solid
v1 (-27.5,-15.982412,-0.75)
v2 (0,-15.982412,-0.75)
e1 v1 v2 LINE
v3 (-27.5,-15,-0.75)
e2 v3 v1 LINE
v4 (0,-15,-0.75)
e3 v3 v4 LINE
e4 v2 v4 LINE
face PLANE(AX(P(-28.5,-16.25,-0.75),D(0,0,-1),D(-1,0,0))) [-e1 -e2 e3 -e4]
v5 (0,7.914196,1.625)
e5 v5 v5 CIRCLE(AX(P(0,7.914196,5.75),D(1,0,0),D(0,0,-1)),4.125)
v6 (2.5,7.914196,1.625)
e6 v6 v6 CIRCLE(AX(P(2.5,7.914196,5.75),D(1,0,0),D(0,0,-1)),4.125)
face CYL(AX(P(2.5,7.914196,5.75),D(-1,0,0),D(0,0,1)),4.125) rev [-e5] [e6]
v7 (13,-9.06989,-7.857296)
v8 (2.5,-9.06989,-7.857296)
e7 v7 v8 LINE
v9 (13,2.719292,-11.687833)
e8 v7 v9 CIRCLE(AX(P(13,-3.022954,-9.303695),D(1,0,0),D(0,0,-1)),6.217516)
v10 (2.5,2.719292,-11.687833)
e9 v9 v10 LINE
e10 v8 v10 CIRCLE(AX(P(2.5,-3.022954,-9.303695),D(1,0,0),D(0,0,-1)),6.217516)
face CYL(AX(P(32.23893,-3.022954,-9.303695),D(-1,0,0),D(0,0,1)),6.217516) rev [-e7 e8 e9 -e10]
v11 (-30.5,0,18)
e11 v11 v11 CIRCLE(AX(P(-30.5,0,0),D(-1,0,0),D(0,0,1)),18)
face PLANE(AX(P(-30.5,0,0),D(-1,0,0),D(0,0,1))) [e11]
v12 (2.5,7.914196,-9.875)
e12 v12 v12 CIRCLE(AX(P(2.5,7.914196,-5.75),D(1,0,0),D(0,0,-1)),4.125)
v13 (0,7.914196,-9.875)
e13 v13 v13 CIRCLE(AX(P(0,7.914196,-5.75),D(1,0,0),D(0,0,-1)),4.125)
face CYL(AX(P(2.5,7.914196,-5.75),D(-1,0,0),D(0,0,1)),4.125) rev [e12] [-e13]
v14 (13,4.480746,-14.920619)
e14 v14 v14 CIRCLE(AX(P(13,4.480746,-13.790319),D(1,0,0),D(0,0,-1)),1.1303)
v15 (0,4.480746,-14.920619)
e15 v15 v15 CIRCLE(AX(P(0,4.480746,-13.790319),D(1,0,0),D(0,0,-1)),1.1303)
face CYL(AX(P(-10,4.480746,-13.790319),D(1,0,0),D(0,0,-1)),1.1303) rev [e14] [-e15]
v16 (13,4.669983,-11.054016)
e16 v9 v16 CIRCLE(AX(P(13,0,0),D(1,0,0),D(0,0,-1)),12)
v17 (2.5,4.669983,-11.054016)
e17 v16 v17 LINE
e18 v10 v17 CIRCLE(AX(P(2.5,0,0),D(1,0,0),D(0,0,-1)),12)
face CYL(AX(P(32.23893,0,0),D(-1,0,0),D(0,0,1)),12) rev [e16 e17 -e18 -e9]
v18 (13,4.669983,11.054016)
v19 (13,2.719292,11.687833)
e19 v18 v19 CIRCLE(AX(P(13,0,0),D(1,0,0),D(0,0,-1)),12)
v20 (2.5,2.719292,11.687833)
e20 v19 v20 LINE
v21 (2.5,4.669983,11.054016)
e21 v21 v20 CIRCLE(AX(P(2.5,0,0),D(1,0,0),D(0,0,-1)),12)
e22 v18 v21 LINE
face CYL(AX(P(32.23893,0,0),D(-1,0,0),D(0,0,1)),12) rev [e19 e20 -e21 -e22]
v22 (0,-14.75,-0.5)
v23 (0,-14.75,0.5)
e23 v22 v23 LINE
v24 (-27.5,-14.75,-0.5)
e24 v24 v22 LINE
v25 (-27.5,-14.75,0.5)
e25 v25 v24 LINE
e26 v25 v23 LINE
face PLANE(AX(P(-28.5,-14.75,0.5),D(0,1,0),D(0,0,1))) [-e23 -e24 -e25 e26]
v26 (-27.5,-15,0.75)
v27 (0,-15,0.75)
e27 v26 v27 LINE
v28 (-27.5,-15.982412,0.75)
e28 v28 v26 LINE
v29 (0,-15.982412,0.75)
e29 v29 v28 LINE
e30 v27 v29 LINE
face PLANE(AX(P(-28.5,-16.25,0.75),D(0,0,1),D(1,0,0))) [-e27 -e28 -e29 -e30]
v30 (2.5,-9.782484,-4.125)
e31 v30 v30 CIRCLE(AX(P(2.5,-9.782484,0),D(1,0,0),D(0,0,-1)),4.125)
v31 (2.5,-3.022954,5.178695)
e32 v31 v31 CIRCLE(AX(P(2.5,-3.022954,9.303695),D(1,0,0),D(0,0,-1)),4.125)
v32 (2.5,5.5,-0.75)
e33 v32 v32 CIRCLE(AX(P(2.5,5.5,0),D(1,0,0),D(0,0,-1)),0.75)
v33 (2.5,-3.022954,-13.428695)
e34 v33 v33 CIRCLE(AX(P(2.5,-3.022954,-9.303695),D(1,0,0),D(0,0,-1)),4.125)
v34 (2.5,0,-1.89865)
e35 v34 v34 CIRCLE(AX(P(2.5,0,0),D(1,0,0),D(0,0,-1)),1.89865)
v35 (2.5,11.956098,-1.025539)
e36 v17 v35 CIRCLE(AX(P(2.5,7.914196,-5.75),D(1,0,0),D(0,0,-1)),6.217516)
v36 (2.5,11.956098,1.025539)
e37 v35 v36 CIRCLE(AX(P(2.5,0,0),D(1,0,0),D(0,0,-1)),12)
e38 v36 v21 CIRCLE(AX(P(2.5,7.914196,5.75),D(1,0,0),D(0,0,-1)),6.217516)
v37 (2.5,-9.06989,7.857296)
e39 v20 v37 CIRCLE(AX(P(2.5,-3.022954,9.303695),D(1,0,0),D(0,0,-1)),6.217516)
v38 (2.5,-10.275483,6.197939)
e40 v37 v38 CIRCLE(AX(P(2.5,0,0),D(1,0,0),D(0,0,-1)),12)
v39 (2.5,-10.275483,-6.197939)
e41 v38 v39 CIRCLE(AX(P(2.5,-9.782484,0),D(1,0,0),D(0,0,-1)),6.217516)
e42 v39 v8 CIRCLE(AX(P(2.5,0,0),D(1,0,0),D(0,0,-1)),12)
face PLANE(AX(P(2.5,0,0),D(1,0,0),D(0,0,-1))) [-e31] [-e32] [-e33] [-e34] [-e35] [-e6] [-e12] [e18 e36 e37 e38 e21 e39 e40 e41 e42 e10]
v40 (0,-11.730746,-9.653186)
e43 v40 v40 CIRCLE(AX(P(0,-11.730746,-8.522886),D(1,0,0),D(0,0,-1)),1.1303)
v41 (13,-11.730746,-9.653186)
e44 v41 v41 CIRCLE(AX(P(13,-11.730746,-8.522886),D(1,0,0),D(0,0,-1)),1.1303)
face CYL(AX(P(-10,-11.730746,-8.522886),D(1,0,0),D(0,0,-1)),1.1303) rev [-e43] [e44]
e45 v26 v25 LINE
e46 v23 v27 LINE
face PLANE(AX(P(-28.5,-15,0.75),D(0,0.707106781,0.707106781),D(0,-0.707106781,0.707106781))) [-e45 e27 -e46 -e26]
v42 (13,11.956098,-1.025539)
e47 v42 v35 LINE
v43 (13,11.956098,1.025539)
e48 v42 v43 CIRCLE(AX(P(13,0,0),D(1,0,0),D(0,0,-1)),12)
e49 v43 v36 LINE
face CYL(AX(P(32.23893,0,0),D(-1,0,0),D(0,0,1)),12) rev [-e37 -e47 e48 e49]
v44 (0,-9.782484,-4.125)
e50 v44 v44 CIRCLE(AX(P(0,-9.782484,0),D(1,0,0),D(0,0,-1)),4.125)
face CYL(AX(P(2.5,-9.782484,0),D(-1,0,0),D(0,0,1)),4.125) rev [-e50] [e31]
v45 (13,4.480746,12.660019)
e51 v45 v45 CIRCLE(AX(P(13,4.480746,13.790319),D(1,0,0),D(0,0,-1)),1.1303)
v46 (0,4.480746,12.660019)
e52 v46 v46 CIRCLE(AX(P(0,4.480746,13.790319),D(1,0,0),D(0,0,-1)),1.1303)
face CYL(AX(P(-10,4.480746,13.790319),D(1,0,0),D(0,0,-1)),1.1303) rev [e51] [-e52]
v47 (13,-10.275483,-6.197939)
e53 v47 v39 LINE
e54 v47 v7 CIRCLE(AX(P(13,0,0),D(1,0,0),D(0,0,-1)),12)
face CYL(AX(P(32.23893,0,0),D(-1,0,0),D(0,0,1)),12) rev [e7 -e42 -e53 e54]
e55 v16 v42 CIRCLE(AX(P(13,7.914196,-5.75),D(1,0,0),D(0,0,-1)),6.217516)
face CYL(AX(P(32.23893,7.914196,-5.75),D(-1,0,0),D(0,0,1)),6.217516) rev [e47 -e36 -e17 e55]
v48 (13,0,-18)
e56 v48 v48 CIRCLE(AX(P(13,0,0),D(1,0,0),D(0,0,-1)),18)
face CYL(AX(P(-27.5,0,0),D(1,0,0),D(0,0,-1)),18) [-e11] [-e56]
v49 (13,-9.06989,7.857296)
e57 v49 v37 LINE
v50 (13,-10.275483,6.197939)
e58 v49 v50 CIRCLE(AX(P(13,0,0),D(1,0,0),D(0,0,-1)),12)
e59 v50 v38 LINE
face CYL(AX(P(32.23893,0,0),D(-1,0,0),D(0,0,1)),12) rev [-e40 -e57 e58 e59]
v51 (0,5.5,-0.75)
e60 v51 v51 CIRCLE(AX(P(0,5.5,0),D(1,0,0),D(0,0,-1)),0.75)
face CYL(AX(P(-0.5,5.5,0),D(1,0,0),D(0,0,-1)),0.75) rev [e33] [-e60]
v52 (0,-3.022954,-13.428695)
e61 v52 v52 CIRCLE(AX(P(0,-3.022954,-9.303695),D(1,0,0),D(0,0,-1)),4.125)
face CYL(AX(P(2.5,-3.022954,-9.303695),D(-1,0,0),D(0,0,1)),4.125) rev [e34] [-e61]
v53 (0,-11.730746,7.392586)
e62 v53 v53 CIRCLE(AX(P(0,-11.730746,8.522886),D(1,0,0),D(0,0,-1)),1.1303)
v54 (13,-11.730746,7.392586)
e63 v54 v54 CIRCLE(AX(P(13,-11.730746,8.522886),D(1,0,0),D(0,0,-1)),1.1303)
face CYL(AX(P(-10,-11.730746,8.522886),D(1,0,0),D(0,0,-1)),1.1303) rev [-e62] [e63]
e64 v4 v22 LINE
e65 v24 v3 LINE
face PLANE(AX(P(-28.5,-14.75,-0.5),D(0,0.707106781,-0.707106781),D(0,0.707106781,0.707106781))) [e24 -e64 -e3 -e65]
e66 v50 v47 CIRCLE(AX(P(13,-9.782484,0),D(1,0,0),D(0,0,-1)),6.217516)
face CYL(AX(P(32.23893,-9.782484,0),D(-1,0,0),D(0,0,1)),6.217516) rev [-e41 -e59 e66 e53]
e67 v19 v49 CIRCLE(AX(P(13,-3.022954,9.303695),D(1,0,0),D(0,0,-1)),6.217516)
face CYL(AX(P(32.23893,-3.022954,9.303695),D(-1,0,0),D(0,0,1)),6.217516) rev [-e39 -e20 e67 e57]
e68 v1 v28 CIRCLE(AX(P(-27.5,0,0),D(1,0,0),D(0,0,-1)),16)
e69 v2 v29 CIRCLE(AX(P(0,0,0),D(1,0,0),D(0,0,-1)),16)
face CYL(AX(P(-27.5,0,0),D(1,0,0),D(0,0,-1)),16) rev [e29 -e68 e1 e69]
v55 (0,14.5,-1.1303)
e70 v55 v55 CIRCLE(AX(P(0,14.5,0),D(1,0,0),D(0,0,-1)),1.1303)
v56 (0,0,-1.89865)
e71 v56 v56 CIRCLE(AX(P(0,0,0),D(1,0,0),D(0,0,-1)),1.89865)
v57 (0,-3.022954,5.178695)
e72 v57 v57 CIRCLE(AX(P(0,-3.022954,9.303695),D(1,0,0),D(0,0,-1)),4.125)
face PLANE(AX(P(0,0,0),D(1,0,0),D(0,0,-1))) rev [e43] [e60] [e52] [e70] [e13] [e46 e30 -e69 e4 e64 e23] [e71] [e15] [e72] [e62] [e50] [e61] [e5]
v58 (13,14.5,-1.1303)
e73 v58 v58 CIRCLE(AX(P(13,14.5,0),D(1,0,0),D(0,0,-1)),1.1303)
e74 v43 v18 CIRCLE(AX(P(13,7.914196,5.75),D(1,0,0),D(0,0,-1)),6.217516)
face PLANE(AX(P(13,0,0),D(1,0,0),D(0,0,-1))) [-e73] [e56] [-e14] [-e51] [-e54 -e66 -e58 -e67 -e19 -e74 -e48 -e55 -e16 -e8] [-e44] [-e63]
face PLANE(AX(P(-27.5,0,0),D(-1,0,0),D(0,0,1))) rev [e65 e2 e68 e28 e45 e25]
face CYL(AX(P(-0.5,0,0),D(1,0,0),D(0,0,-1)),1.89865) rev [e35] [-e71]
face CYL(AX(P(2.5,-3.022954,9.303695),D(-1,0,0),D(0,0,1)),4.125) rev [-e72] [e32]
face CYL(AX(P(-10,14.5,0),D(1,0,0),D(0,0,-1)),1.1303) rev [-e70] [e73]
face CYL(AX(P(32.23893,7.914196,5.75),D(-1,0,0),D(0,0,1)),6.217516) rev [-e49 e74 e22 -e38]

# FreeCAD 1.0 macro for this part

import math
import FreeCAD as App
import Part
import Sketcher

V = App.Vector
Q = App.Units.Quantity


def add_polygon(sketch, points):
    """Adds a closed chain of lines whose ends are joined by coincident constraints."""
    first, n = sketch.GeometryCount, len(points)
    for a, b in zip(points, points[1:] + points[:1]):
        sketch.addGeometry(Part.LineSegment(App.Vector(*a, 0), App.Vector(*b, 0)), False)
    for i in range(n):
        sketch.addConstraint(Sketcher.Constraint("Coincident", first + i, 2, first + (i + 1) % n, 1))

doc = App.newDocument("Part")
body = doc.addObject("PartDesign::Body", "Body")

# Sketch on YZ plane
sketch1 = body.newObject("Sketcher::SketchObject", "Sketch")
sketch1.AttachmentSupport = (doc.getObject("YZ_Plane"), [""])
sketch1.MapMode = "FlatFace"
sketch1.addGeometry([
    Part.Circle(V(0, 0, 0), V(0, 0, 1), 16),  # 0
    Part.Circle(V(-9.782484, 0, 0), V(0, 0, 1), 4.125),  # 1
    Part.Circle(V(-3.022954, 9.303695, 0), V(0, 0, 1), 4.125),  # 2
    Part.Circle(V(-3.022954, -9.303695, 0), V(0, 0, 1), 4.125),  # 3
    Part.Circle(V(7.914196, 5.75, 0), V(0, 0, 1), 4.125),  # 4
    Part.Circle(V(7.914196, -5.75, 0), V(0, 0, 1), 4.125),  # 5
], False)
sketch1.addConstraint([
    Sketcher.Constraint("Coincident", 0, 3, -1, 1),
    Sketcher.Constraint("Equal", 1, 2),
    Sketcher.Constraint("Equal", 2, 3),
    Sketcher.Constraint("Equal", 3, 4),
    Sketcher.Constraint("Equal", 4, 5),
    Sketcher.Constraint("Symmetric", 2, 3, 3, 3, -1),
    Sketcher.Constraint("Symmetric", 4, 3, 5, 3, -1),
    Sketcher.Constraint("PointOnObject", 1, 3, -1),
    Sketcher.Constraint("Diameter", 0, Q("32 mm")),
    Sketcher.Constraint("Diameter", 1, Q("8.25 mm")),
    Sketcher.Constraint("DistanceY", 5, 3, 4, 3, Q("11.5 mm")),
    Sketcher.Constraint("DistanceX", 1, 3, 2, 3, Q("6.75953 mm")),
    Sketcher.Constraint("DistanceY", 3, 3, 2, 3, Q("18.607391 mm")),
    Sketcher.Constraint("DistanceX", 2, 3, 4, 3, Q("10.93715 mm")),
    Sketcher.Constraint("DistanceX", 1, 3, -1, 1, Q("9.782484 mm")),
])
pad1 = body.newObject("PartDesign::Pad", "Pad")
pad1.Profile = sketch1
pad1.Length = 2.5

# Sketch on YZ plane
sketch2 = body.newObject("Sketcher::SketchObject", "Sketch001")
sketch2.AttachmentSupport = (doc.getObject("YZ_Plane"), [""])
sketch2.MapMode = "FlatFace"
sketch2.AttachmentOffset = App.Placement(V(0, 0, 2.5), App.Rotation())
sketch2.addGeometry([
    Part.Circle(V(0, 0, 0), V(0, 0, 1), 18),
    Part.Circle(V(0, 0, 0), V(0, 0, 1), 16),
], False)
sketch2.addConstraint([
    Sketcher.Constraint("Coincident", 0, 3, -1, 1),
    Sketcher.Constraint("Coincident", 1, 3, -1, 1),
    Sketcher.Constraint("Diameter", 0, Q("36 mm")),
    Sketcher.Constraint("Diameter", 1, Q("32 mm")),
])
pad2 = body.newObject("PartDesign::Pad", "Pad001")
pad2.Profile = sketch2
pad2.Type = "TwoLengths"
pad2.Length = 10.5
pad2.Length2 = 30

# Sketch on YZ plane
sketch3 = body.newObject("Sketcher::SketchObject", "Sketch002")
sketch3.AttachmentSupport = (doc.getObject("YZ_Plane"), [""])
sketch3.MapMode = "FlatFace"
sketch3.AttachmentOffset = App.Placement(V(0, 0, -27.5), App.Rotation())
sketch3.addGeometry(Part.Circle(V(0, 0, 0), V(0, 0, 1), 18), False)
sketch3.addConstraint([
    Sketcher.Constraint("Coincident", 0, 3, -1, 1),
    Sketcher.Constraint("Diameter", 0, Q("36 mm")),
])
pad3 = body.newObject("PartDesign::Pad", "Pad002")
pad3.Profile = sketch3
pad3.Length = 3
pad3.Reversed = True

# Sketch on YZ plane
sketch4 = body.newObject("Sketcher::SketchObject", "Sketch003")
sketch4.AttachmentSupport = (doc.getObject("YZ_Plane"), [""])
sketch4.MapMode = "FlatFace"
sketch4.AttachmentOffset = App.Placement(V(0, 0, 2.5), App.Rotation())
sketch4.addGeometry(Part.Circle(V(0, 0, 0), V(0, 0, 1), 1.89865), False)
sketch4.addConstraint([
    Sketcher.Constraint("Coincident", 0, 3, -1, 1),
    Sketcher.Constraint("Diameter", 0, Q("3.7973 mm")),
])
pocket1 = body.newObject("PartDesign::Pocket", "Pocket")
pocket1.Profile = sketch4
pocket1.Length = 3

# Sketch on YZ plane
sketch5 = body.newObject("Sketcher::SketchObject", "Sketch004")
sketch5.AttachmentSupport = (doc.getObject("YZ_Plane"), [""])
sketch5.MapMode = "FlatFace"
sketch5.AttachmentOffset = App.Placement(V(0, 0, 2.5), App.Rotation())
add_polygon(sketch5, [(-14.75, 0.5), (-15, 0.75), (-16.25, 0.75), (-16.25, -0.75), (-15, -0.75), (-14.75, -0.5)])  # lines 0-5
sketch5.addConstraint([
    Sketcher.Constraint("Horizontal", 1),
    Sketcher.Constraint("Vertical", 2),
    Sketcher.Constraint("Horizontal", 3),
    Sketcher.Constraint("Vertical", 5),
    Sketcher.Constraint("Symmetric", 0, 2, 3, 2, -1),
    Sketcher.Constraint("Perpendicular", 0, 4),
    Sketcher.Constraint("Equal", 0, 4),
    Sketcher.Constraint("DistanceY", 5, 1, 5, 2, Q("1 mm")),
    Sketcher.Constraint("DistanceY", 2, 2, 2, 1, Q("1.5 mm")),
    Sketcher.Constraint("DistanceX", 0, 2, -1, 1, Q("15 mm")),
    Sketcher.Constraint("DistanceX", 1, 2, 1, 1, Q("1.25 mm")),
])
pad4 = body.newObject("PartDesign::Pad", "Pad003")
pad4.Profile = sketch5
pad4.Length = 31
pad4.Reversed = True

# Sketch on YZ plane
sketch6 = body.newObject("Sketcher::SketchObject", "Sketch005")
sketch6.AttachmentSupport = (doc.getObject("YZ_Plane"), [""])
sketch6.MapMode = "FlatFace"
sketch6.AttachmentOffset = App.Placement(V(0, 0, 2.5), App.Rotation())
sketch6.addGeometry(Part.Circle(V(5.5, 0, 0), V(0, 0, 1), 0.75), False)
sketch6.addConstraint([
    Sketcher.Constraint("PointOnObject", 0, 3, -1),
    Sketcher.Constraint("Diameter", 0, Q("1.5 mm")),
    Sketcher.Constraint("DistanceX", -1, 1, 0, 3, Q("5.5 mm")),
])
pocket2 = body.newObject("PartDesign::Pocket", "Pocket001")
pocket2.Profile = sketch6
pocket2.Length = 3

# Sketch on YZ plane
sketch7 = body.newObject("Sketcher::SketchObject", "Sketch006")
sketch7.AttachmentSupport = (doc.getObject("YZ_Plane"), [""])
sketch7.MapMode = "FlatFace"
sketch7.AttachmentOffset = App.Placement(V(0, 0, 2.5), App.Rotation())
sketch7.addGeometry([
    Part.ArcOfCircle(Part.Circle(V(7.914196, 5.75, 0), V(0, 0, 1), 6.217516), math.radians(-49.452136), math.radians(36)),  # 0
    Part.ArcOfCircle(Part.Circle(V(0, 0, 0), V(0, 0, 1), 12), math.radians(-4.902567), math.radians(4.902567)),  # 1
    Part.ArcOfCircle(Part.Circle(V(7.914196, -5.75, 0), V(0, 0, 1), 6.217516), math.radians(-36.000003), math.radians(49.452136)),  # 2
    Part.ArcOfCircle(Part.Circle(V(0, 0, 0), V(0, 0, 1), 16), math.radians(-36.000001), math.radians(36)),  # 3
    Part.ArcOfCircle(Part.Circle(V(7.914196, 5.75, 0), V(0, 0, 1), 6.217516), math.radians(36), math.radians(121.452136)),  # 4
    Part.ArcOfCircle(Part.Circle(V(0, 0, 0), V(0, 0, 1), 16), math.radians(36), math.radians(107.999999)),  # 5
    Part.ArcOfCircle(Part.Circle(V(-3.022954, 9.303695, 0), V(0, 0, 1), 6.217516), math.radians(22.547864), math.radians(107.999998)),  # 6
    Part.ArcOfCircle(Part.Circle(V(0, 0, 0), V(0, 0, 1), 12), math.radians(67.097433), math.radians(76.902567)),  # 7
    Part.ArcOfCircle(Part.Circle(V(-3.022954, 9.303695, 0), V(0, 0, 1), 6.217516), math.radians(107.999998), math.radians(193.452136)),  # 8
    Part.ArcOfCircle(Part.Circle(V(0, 0, 0), V(0, 0, 1), 16), math.radians(107.999999), math.radians(180)),  # 9
    Part.ArcOfCircle(Part.Circle(V(-9.782484, 0, 0), V(0, 0, 1), 6.217516), math.radians(94.547864), math.radians(180)),  # 10
    Part.ArcOfCircle(Part.Circle(V(0, 0, 0), V(0, 0, 1), 12), math.radians(139.097433), math.radians(148.902567)),  # 11
    Part.ArcOfCircle(Part.Circle(V(-9.782484, 0, 0), V(0, 0, 1), 6.217516), math.radians(-180), math.radians(-94.547864)),  # 12
    Part.ArcOfCircle(Part.Circle(V(0, 0, 0), V(0, 0, 1), 16), math.radians(180), math.radians(252)),  # 13
    Part.ArcOfCircle(Part.Circle(V(-3.022954, -9.303695, 0), V(0, 0, 1), 6.217516), math.radians(166.547864), math.radians(251.999999)),  # 14
    Part.ArcOfCircle(Part.Circle(V(0, 0, 0), V(0, 0, 1), 12), math.radians(-148.902567), math.radians(-139.097433)),  # 15
    Part.ArcOfCircle(Part.Circle(V(0, 0, 0), V(0, 0, 1), 16), math.radians(-90), math.radians(-36.000001)),  # 16
    Part.ArcOfCircle(Part.Circle(V(7.914196, -5.75, 0), V(0, 0, 1), 6.217516), math.radians(-121.452136), math.radians(-36.000003)),  # 17
    Part.ArcOfCircle(Part.Circle(V(0, 0, 0), V(0, 0, 1), 12), math.radians(-76.902567), math.radians(-67.097433)),  # 18
    Part.ArcOfCircle(Part.Circle(V(-3.022954, -9.303695, 0), V(0, 0, 1), 6.217516), math.radians(-108.000001), math.radians(-22.547864)),  # 19
    Part.ArcOfCircle(Part.Circle(V(0, 0, 0), V(0, 0, 1), 16), math.radians(-108), math.radians(-90)),  # 20
], False)
sketch7.addConstraint([
    Sketcher.Constraint("Coincident", 0, 1, 1, 2),
    Sketcher.Constraint("Coincident", 1, 1, 2, 2),
    Sketcher.Constraint("Tangent", 2, 1, 3, 1),
    Sketcher.Constraint("Tangent", 3, 2, 0, 2),
    Sketcher.Constraint("Tangent", 4, 1, 5, 1),
    Sketcher.Constraint("Tangent", 5, 2, 6, 2),
    Sketcher.Constraint("Coincident", 6, 1, 7, 2),
    Sketcher.Constraint("Coincident", 7, 1, 4, 2),
    Sketcher.Constraint("Tangent", 8, 1, 9, 1),
    Sketcher.Constraint("Tangent", 9, 2, 10, 2),
    Sketcher.Constraint("Coincident", 10, 1, 11, 2),
    Sketcher.Constraint("Coincident", 11, 1, 8, 2),
    Sketcher.Constraint("Tangent", 12, 1, 13, 1),
    Sketcher.Constraint("Tangent", 13, 2, 14, 2),
    Sketcher.Constraint("Coincident", 14, 1, 15, 2),
    Sketcher.Constraint("Coincident", 15, 1, 12, 2),
    Sketcher.Constraint("Tangent", 16, 2, 17, 2),
    Sketcher.Constraint("Coincident", 17, 1, 18, 2),
    Sketcher.Constraint("Coincident", 18, 1, 19, 2),
    Sketcher.Constraint("Tangent", 19, 1, 20, 1),
    Sketcher.Constraint("Tangent", 20, 2, 16, 1),
    Sketcher.Constraint("Coincident", 1, 3, -1, 1),
    Sketcher.Constraint("Coincident", 3, 3, -1, 1),
    Sketcher.Constraint("Coincident", 5, 3, -1, 1),
    Sketcher.Constraint("Coincident", 7, 3, -1, 1),
    Sketcher.Constraint("Coincident", 9, 3, -1, 1),
    Sketcher.Constraint("Coincident", 11, 3, -1, 1),
    Sketcher.Constraint("Coincident", 13, 3, -1, 1),
    Sketcher.Constraint("Coincident", 15, 3, -1, 1),
    Sketcher.Constraint("Coincident", 16, 3, -1, 1),
    Sketcher.Constraint("Coincident", 18, 3, -1, 1),
    Sketcher.Constraint("Coincident", 4, 3, 0, 3),
    Sketcher.Constraint("Coincident", 8, 3, 6, 3),
    Sketcher.Constraint("Coincident", 12, 3, 10, 3),
    Sketcher.Constraint("Coincident", 17, 3, 2, 3),
    Sketcher.Constraint("Coincident", 19, 3, 14, 3),
    Sketcher.Constraint("Coincident", 19, 1, 13, 2),
    Sketcher.Constraint("Equal", 0, 2),
    Sketcher.Constraint("Equal", 2, 4),
    Sketcher.Constraint("Equal", 4, 6),
    Sketcher.Constraint("Equal", 1, 7),
    Sketcher.Constraint("Equal", 6, 8),
    Sketcher.Constraint("Equal", 8, 10),
    Sketcher.Constraint("Equal", 7, 11),
    Sketcher.Constraint("Equal", 10, 12),
    Sketcher.Constraint("Equal", 12, 14),
    Sketcher.Constraint("Equal", 11, 15),
    Sketcher.Constraint("Equal", 15, 18),
    Sketcher.Constraint("PointOnObject", 10, 3, -1),
    Sketcher.Constraint("PointOnObject", 20, 2, -2),
    Sketcher.Constraint("Vertical", 0, 3, 2, 3),
    Sketcher.Constraint("Vertical", 8, 3, 14, 3),
    Sketcher.Constraint("Radius", 1, Q("12 mm")),
    Sketcher.Constraint("Radius", 3, Q("16 mm")),
    Sketcher.Constraint("DistanceY", 2, 3, 0, 3, Q("11.5 mm")),
    Sketcher.Constraint("Radius", 0, Q("6.217516 mm")),
    Sketcher.Constraint("DistanceY", 11, 1, 6, 3, Q("1.446399 mm")),
])
pad5 = body.newObject("PartDesign::Pad", "Pad004")
pad5.Profile = sketch7
pad5.Length = 10.5

# Sketch on YZ plane
sketch8 = body.newObject("Sketcher::SketchObject", "Sketch007")
sketch8.AttachmentSupport = (doc.getObject("YZ_Plane"), [""])
sketch8.MapMode = "FlatFace"
sketch8.AttachmentOffset = App.Placement(V(0, 0, 13), App.Rotation())
sketch8.addGeometry([
    Part.Circle(V(14.5, 0, 0), V(0, 0, 1), 1.1303),  # 0
    Part.Circle(V(4.480746, -13.790319, 0), V(0, 0, 1), 1.1303),  # 1
    Part.Circle(V(-11.730746, -8.522886, 0), V(0, 0, 1), 1.1303),  # 2
    Part.Circle(V(-11.730746, 8.522886, 0), V(0, 0, 1), 1.1303),  # 3
    Part.Circle(V(4.480746, 13.790319, 0), V(0, 0, 1), 1.1303),  # 4
], False)
sketch8.addConstraint([
    Sketcher.Constraint("Equal", 0, 1),
    Sketcher.Constraint("Equal", 1, 2),
    Sketcher.Constraint("Equal", 2, 3),
    Sketcher.Constraint("Equal", 3, 4),
    Sketcher.Constraint("Symmetric", 2, 3, 3, 3, -1),
    Sketcher.Constraint("Symmetric", 1, 3, 4, 3, -1),
    Sketcher.Constraint("PointOnObject", 0, 3, -1),
    Sketcher.Constraint("Diameter", 0, Q("2.2606 mm")),
    Sketcher.Constraint("DistanceX", -1, 1, 0, 3, Q("14.5 mm")),
    Sketcher.Constraint("DistanceY", 1, 3, -1, 1, Q("13.790319 mm")),
    Sketcher.Constraint("DistanceX", -1, 1, 1, 3, Q("4.480746 mm")),
    Sketcher.Constraint("DistanceX", 2, 3, -1, 1, Q("11.730746 mm")),
    Sketcher.Constraint("DistanceY", 2, 3, -1, 1, Q("8.522886 mm")),
])
pocket3 = body.newObject("PartDesign::Pocket", "Pocket002")
pocket3.Profile = sketch8
pocket3.Length = 23

doc.recompute()
